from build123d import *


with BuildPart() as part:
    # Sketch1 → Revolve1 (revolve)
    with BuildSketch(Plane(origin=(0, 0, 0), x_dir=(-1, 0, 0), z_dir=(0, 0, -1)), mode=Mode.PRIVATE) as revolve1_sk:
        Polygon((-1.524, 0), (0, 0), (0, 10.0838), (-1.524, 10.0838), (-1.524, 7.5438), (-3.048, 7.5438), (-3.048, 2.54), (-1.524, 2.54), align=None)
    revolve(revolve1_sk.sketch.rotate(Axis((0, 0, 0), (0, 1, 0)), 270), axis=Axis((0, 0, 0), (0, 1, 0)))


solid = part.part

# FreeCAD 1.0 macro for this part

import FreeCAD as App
import Part
import Sketcher

V = App.Vector
Q = App.Units.Quantity

doc = App.newDocument("Part")
body = doc.addObject("PartDesign::Body", "Body")

# Sketch on XY plane
sketch1 = doc.addObject("Sketcher::SketchObject", "Sketch")
body.addObject(sketch1)
sketch1.AttachmentSupport = (doc.XY_Plane, [""])
sketch1.MapMode = "FlatFace"
sketch1.addGeometry([
    Part.LineSegment(V(1.524, 0, 0), V(0, 0, 0)),  # 0
    Part.LineSegment(V(0, 0, 0), V(0, 10.0838, 0)),  # 1
    Part.LineSegment(V(0, 10.0838, 0), V(1.524, 10.0838, 0)),  # 2
    Part.LineSegment(V(1.524, 10.0838, 0), V(1.524, 7.5438, 0)),  # 3
    Part.LineSegment(V(1.524, 7.5438, 0), V(3.048, 7.5438, 0)),  # 4
    Part.LineSegment(V(3.048, 7.5438, 0), V(3.048, 2.54, 0)),  # 5
    Part.LineSegment(V(3.048, 2.54, 0), V(1.524, 2.54, 0)),  # 6
    Part.LineSegment(V(1.524, 2.54, 0), V(1.524, 0, 0)),  # 7
], False)
sketch1.addConstraint([
    Sketcher.Constraint("Coincident", 0, 2, 1, 1),
    Sketcher.Constraint("Coincident", 1, 2, 2, 1),
    Sketcher.Constraint("Coincident", 2, 2, 3, 1),
    Sketcher.Constraint("Coincident", 3, 2, 4, 1),
    Sketcher.Constraint("Coincident", 4, 2, 5, 1),
    Sketcher.Constraint("Coincident", 5, 2, 6, 1),
    Sketcher.Constraint("Coincident", 6, 2, 7, 1),
    Sketcher.Constraint("Coincident", 7, 2, 0, 1),
    Sketcher.Constraint("Horizontal", 0),
    Sketcher.Constraint("Vertical", 1),
    Sketcher.Constraint("Horizontal", 2),
    Sketcher.Constraint("Vertical", 3),
    Sketcher.Constraint("Horizontal", 4),
    Sketcher.Constraint("Vertical", 5),
    Sketcher.Constraint("Horizontal", 6),
    Sketcher.Constraint("Vertical", 7),
    Sketcher.Constraint("Coincident", 0, 2, -1, 1),
    Sketcher.Constraint("Vertical", 3, 2, 6, 2),
    Sketcher.Constraint("Equal", 2, 4),
    Sketcher.Constraint("Equal", 3, 7),
    Sketcher.Constraint("DistanceY", 3, 2, 3, 1, Q("0.1 in")),
    Sketcher.Constraint("DistanceX", 0, 2, 0, 1, Q("0.06 in")),
    Sketcher.Constraint("DistanceY", 1, 1, 1, 2, Q("0.397 in")),
])
revolution = doc.addObject("PartDesign::Revolution", "Revolution")
body.addObject(revolution)
revolution.Profile = sketch1
revolution.ReferenceAxis = (sketch1, ["V_Axis"])
revolution.Angle = 360

doc.recompute()
